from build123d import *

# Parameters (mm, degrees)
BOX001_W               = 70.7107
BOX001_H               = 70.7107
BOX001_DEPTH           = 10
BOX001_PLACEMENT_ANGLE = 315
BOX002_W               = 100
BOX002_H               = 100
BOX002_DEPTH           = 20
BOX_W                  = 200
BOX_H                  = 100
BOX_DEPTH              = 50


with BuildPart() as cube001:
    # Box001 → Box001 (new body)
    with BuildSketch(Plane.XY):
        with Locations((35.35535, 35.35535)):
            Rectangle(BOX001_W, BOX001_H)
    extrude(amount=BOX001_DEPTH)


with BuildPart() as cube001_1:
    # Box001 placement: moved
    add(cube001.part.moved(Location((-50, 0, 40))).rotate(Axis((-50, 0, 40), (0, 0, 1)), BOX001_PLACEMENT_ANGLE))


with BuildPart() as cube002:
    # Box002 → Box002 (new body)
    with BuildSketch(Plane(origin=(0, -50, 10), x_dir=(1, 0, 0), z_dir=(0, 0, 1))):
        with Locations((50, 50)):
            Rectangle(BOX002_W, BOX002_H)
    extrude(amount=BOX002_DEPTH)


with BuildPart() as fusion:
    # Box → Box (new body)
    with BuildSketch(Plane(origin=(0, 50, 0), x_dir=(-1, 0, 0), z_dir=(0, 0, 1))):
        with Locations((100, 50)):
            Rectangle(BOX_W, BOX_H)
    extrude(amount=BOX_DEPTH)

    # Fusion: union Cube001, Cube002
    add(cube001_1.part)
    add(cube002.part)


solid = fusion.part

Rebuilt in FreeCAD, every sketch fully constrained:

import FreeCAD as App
import Part
import Sketcher
from FreeCAD import Vector
Q = App.Units.Quantity


def add_polygon(sketch, points):
    """Adds a closed chain of lines whose ends are joined by coincident constraints."""
    first, n = sketch.GeometryCount, len(points)
    for a, b in zip(points, points[1:] + points[:1]):
        sketch.addGeometry(Part.LineSegment(App.Vector(*a, 0), App.Vector(*b, 0)), False)
    for i in range(n):
        sketch.addConstraint(Sketcher.Constraint("Coincident", first + i, 2, first + (i + 1) % n, 1))

doc = App.newDocument("Part")
params = doc.addObject("Spreadsheet::Sheet", "Params")
for row, (alias, value) in enumerate([
    ("pad1_length", "10 mm"),
    ("sketch2_width", "100 mm"),
    ("pad2_length", "20 mm"),
    ("sketch3_width", "200 mm"),
    ("sketch3_height", "100 mm"),
    ("pad3_length", "50 mm"),
], start=1):
    params.set(f"A{row}", alias)
    params.set(f"B{row}", "=" + value)
    params.setAlias(f"B{row}", alias)

body = doc.addObject("PartDesign::Body", "Body")

sketch1 = body.newObject("Sketcher::SketchObject", "Sketch")
sketch1.AttachmentSupport = (doc.getObject("XY_Plane"), [""])
sketch1.MapMode = "FlatFace"
add_polygon(sketch1, [(0, 70.7107), (0, 0), (70.7107, 0), (70.7107, 70.7107)])
sketch1.addConstraint([
    Sketcher.Constraint("Vertical", 0),
    Sketcher.Constraint("Horizontal", 1),
    Sketcher.Constraint("Vertical", 2),
    Sketcher.Constraint("Horizontal", 3),
    Sketcher.Constraint("Coincident", 0, 2, -1, 1),
    Sketcher.Constraint("Equal", 3, 0),
    Sketcher.Constraint("DistanceX", 1, 1, 1, 2, Q("70.7107 mm")),
])
pad1 = body.newObject("PartDesign::Pad", "Pad")
pad1.Profile = sketch1
pad1.setExpression("Length", "Params.pad1_length")
body2 = doc.addObject("PartDesign::Body", "Body001")
doc.recompute()

body.Placement = App.Placement(Vector(-50, 0, 40), App.Rotation(Vector(0, 0, 1), 315))
boolean = body2.newObject("PartDesign::Boolean", "Boolean")
boolean.Type = "Fuse"
boolean.addObjects([body])
body3 = doc.addObject("PartDesign::Body", "Body002")

sketch2 = body3.newObject("Sketcher::SketchObject", "Sketch001")
sketch2.AttachmentSupport = (doc.getObject("XY_Plane002"), [""])
sketch2.MapMode = "FlatFace"
sketch2.AttachmentOffset = App.Placement(Vector(0, 0, 10), App.Rotation())
add_polygon(sketch2, [(0, 50), (0, -50), (100, -50), (100, 50)])
sketch2.addConstraint([
    Sketcher.Constraint("Vertical", 0),
    Sketcher.Constraint("Horizontal", 1),
    Sketcher.Constraint("Vertical", 2),
    Sketcher.Constraint("Horizontal", 3),
    Sketcher.Constraint("Symmetric", 0, 2, 3, 2, -1, 1),
    Sketcher.Constraint("Equal", 3, 0),
    Sketcher.Constraint("DistanceX", 1, 1, 1, 2, Q("100 mm")),
])
sketch2.setExpression("Constraints[10]", "Params.sketch2_width")
pad2 = body3.newObject("PartDesign::Pad", "Pad001")
pad2.Profile = sketch2
pad2.setExpression("Length", "Params.pad2_length")
body4 = doc.addObject("PartDesign::Body", "Body003")

sketch3 = body4.newObject("Sketcher::SketchObject", "Sketch002")
sketch3.AttachmentSupport = (doc.getObject("XY_Plane003"), [""])
sketch3.MapMode = "FlatFace"
add_polygon(sketch3, [(0, -50), (0, 50), (-200, 50), (-200, -50)])
sketch3.addConstraint([
    Sketcher.Constraint("Vertical", 0),
    Sketcher.Constraint("Horizontal", 1),
    Sketcher.Constraint("Vertical", 2),
    Sketcher.Constraint("Horizontal", 3),
    Sketcher.Constraint("Symmetric", 0, 2, 3, 2, -1, 1),
    Sketcher.Constraint("DistanceX", 1, 2, 1, 1, Q("200 mm")),
    Sketcher.Constraint("DistanceY", 0, 1, 0, 2, Q("100 mm")),
])
sketch3.setExpression("Constraints[9]", "Params.sketch3_width")
sketch3.setExpression("Constraints[10]", "Params.sketch3_height")
pad3 = body4.newObject("PartDesign::Pad", "Pad002")
pad3.Profile = sketch3
pad3.setExpression("Length", "Params.pad3_length")
doc.recompute()

boolean2 = body4.newObject("PartDesign::Boolean", "Boolean001")
boolean2.Type = "Fuse"
boolean2.addObjects([body2])
doc.recompute()

boolean3 = body4.newObject("PartDesign::Boolean", "Boolean002")
boolean3.Type = "Fuse"
boolean3.addObjects([body3])

doc.recompute()
